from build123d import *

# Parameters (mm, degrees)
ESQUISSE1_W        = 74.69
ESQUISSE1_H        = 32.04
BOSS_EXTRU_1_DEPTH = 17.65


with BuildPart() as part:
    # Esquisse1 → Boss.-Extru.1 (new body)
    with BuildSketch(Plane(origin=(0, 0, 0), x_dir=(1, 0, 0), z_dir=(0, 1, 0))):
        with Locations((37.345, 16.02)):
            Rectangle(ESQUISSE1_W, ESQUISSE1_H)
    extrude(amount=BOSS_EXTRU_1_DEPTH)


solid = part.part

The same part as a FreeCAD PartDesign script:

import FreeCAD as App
import Part
import Sketcher


def add_polygon(sketch, points):
    """Adds a closed chain of lines whose ends are joined by coincident constraints."""
    first, n = sketch.GeometryCount, len(points)
    for a, b in zip(points, points[1:] + points[:1]):
        sketch.addGeometry(Part.LineSegment(App.Vector(*a, 0), App.Vector(*b, 0)), False)
    for i in range(n):
        sketch.addConstraint(Sketcher.Constraint("Coincident", first + i, 2, first + (i + 1) % n, 1))

doc = App.newDocument("Part")
body = doc.addObject("PartDesign::Body", "Body")

# Sketch on XZ plane
sketch1 = body.newObject("Sketcher::SketchObject", "Sketch")
sketch1.AttachmentSupport = (doc.getObject("XZ_Plane"), [""])
sketch1.MapMode = "FlatFace"
add_polygon(sketch1, [(0, -32), (0, 0), (75, 0), (75, -32)])  # lines 0-3
sketch1.addConstraint(Sketcher.Constraint("Vertical", 0))
sketch1.addConstraint(Sketcher.Constraint("Horizontal", 1))
sketch1.addConstraint(Sketcher.Constraint("Vertical", 2))
sketch1.addConstraint(Sketcher.Constraint("Horizontal", 3))
sketch1.addConstraint(Sketcher.Constraint("Coincident", 0, 2, -1, 1))
sketch1.addConstraint(Sketcher.Constraint("DistanceX", 1, 1, 1, 2, 74.69))
sketch1.addConstraint(Sketcher.Constraint("DistanceY", 0, 1, 0, 2, 32.04))
pad1 = body.newObject("PartDesign::Pad", "Pad")
pad1.Profile = sketch1
pad1.Length = 17.65
pad1.Reversed = True

doc.recompute()
